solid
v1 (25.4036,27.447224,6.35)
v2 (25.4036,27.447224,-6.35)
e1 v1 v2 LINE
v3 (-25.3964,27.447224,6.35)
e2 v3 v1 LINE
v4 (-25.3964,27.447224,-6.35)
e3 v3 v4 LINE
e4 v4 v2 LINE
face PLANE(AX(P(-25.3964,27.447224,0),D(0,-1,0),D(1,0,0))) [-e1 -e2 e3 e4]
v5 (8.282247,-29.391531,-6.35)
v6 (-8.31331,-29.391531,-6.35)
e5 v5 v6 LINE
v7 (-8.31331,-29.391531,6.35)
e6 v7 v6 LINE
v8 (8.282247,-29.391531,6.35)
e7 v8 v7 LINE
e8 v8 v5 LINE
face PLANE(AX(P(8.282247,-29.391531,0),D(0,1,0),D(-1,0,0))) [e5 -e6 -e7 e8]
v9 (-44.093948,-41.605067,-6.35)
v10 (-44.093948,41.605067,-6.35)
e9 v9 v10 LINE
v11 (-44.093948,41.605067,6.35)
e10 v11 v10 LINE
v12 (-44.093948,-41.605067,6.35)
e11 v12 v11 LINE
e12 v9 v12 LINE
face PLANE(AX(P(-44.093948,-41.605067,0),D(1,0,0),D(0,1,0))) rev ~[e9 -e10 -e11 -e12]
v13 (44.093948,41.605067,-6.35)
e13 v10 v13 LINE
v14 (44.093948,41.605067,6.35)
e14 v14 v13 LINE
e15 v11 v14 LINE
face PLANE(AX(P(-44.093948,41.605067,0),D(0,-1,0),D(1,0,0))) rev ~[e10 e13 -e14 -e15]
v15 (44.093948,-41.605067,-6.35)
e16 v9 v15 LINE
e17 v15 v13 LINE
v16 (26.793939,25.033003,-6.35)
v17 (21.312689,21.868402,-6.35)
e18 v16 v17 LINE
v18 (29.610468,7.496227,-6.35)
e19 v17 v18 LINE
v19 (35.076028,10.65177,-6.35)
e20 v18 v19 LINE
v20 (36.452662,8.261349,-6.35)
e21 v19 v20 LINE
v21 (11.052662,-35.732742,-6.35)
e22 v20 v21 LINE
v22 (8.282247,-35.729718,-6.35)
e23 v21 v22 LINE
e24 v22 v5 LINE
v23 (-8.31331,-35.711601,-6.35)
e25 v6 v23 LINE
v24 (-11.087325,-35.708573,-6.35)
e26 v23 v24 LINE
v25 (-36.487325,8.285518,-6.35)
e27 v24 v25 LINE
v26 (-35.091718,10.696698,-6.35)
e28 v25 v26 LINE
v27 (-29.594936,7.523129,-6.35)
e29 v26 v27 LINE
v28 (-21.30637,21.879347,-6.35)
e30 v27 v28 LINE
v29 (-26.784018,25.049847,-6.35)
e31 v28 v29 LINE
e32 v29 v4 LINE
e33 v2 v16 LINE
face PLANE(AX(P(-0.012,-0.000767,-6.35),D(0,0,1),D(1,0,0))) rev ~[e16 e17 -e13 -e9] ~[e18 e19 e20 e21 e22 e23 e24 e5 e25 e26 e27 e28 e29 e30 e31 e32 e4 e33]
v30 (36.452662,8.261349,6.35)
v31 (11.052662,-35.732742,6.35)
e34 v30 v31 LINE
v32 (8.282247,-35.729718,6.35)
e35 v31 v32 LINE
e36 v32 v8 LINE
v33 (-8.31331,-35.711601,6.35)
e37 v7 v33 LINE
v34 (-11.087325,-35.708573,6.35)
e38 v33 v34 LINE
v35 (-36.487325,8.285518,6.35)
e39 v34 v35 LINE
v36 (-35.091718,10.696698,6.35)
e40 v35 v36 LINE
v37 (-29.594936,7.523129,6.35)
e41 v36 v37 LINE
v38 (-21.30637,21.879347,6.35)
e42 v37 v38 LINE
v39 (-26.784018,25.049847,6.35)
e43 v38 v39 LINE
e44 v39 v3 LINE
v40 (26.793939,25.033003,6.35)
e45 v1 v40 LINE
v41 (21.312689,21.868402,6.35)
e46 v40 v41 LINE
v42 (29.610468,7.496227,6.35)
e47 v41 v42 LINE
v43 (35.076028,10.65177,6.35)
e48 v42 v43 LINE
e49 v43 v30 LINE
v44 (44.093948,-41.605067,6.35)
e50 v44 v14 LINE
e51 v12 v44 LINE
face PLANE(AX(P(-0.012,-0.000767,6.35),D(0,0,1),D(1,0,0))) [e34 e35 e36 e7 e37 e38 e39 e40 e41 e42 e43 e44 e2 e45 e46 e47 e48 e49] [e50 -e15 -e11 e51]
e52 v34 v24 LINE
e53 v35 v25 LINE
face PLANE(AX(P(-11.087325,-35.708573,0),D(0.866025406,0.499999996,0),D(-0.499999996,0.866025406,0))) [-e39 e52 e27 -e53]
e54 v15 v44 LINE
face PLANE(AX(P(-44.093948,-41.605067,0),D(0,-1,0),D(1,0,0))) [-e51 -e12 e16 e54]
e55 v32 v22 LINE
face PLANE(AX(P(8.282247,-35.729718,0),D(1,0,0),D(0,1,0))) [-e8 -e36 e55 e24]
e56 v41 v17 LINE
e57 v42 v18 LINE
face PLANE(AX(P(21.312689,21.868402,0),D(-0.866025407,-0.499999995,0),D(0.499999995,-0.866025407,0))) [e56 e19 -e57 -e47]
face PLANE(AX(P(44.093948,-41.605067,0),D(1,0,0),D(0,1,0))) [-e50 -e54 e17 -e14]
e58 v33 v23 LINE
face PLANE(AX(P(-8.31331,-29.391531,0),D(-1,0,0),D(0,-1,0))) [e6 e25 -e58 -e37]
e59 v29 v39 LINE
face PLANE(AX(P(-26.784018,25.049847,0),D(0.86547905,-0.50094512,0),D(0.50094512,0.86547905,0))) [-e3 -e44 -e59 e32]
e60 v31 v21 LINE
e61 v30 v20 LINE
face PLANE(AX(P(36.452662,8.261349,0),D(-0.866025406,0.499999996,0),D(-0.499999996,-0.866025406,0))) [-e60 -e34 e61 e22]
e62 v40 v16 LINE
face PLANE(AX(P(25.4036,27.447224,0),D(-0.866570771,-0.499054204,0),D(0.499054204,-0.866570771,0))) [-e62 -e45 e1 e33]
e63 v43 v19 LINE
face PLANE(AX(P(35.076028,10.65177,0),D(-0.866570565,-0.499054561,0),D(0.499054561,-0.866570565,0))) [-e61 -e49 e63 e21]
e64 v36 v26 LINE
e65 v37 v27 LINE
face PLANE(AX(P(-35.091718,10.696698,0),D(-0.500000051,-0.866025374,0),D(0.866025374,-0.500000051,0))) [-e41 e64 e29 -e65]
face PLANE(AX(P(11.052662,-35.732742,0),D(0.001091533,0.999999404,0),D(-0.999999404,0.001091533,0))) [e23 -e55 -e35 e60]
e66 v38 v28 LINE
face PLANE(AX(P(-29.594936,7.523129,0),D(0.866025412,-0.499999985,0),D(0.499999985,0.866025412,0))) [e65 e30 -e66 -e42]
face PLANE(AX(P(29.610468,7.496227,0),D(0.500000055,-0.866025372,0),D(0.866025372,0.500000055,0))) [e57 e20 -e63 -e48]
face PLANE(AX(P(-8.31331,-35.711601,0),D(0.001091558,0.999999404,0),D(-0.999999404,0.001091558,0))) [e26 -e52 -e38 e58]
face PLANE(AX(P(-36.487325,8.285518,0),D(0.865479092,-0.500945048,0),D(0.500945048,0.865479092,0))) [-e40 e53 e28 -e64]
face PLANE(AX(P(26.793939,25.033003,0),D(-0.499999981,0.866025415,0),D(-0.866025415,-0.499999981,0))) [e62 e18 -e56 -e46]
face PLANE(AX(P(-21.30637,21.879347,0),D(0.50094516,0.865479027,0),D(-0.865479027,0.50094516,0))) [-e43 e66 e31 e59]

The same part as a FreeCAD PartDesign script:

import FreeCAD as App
import Part
import Sketcher
Q = App.Units.Quantity


def add_polygon(sketch, points):
    """Adds a closed chain of lines whose ends are joined by coincident constraints."""
    first, n = sketch.GeometryCount, len(points)
    for a, b in zip(points, points[1:] + points[:1]):
        sketch.addGeometry(Part.LineSegment(App.Vector(*a, 0), App.Vector(*b, 0)), False)
    for i in range(n):
        sketch.addConstraint(Sketcher.Constraint("Coincident", first + i, 2, first + (i + 1) % n, 1))

doc = App.newDocument("Part")
body = doc.addObject("PartDesign::Body", "Body")

sketch1 = body.newObject("Sketcher::SketchObject", "Sketch")
sketch1.AttachmentSupport = (doc.getObject("XY_Plane"), [""])
sketch1.MapMode = "FlatFace"
add_polygon(sketch1, [(-44.1, 41.6), (-44.1, -41.6), (44.1, -41.6), (44.1, 41.6)])
add_polygon(sketch1, [(-21.3, 21.9), (-26.8, 25), (-25.4, 27.4), (25.4, 27.4), (26.8, 25), (21.3, 21.9), (29.6, 7.5), (35.1, 10.7), (36.5, 8.3), (11.1, -35.7), (8.3, -35.7), (8.3, -29.4), (-8.3, -29.4), (-8.3, -35.7), (-11.1, -35.7), (-36.5, 8.3), (-35.1, 10.7), (-29.6, 7.5)])
sketch1.addConstraint(Sketcher.Constraint("Vertical", 0))
sketch1.addConstraint(Sketcher.Constraint("Horizontal", 1))
sketch1.addConstraint(Sketcher.Constraint("Vertical", 2))
sketch1.addConstraint(Sketcher.Constraint("Horizontal", 3))
sketch1.addConstraint(Sketcher.Constraint("Horizontal", 6))
sketch1.addConstraint(Sketcher.Constraint("Vertical", 14))
sketch1.addConstraint(Sketcher.Constraint("Horizontal", 15))
sketch1.addConstraint(Sketcher.Constraint("Vertical", 16))
sketch1.addConstraint(Sketcher.Constraint("Symmetric", 0, 2, 2, 2, -1, 1))
sketch1.addConstraint(Sketcher.Constraint("Perpendicular", 4, 5))
sketch1.addConstraint(Sketcher.Constraint("Perpendicular", 8, 9))
sketch1.addConstraint(Sketcher.Constraint("Perpendicular", 9, 10))
sketch1.addConstraint(Sketcher.Constraint("Parallel", 7, 11))
sketch1.addConstraint(Sketcher.Constraint("Parallel", 13, 17))
sketch1.addConstraint(Sketcher.Constraint("Perpendicular", 10, 18))
sketch1.addConstraint(Sketcher.Constraint("Parallel", 5, 19))
sketch1.addConstraint(Sketcher.Constraint("Perpendicular", 12, 20))
sketch1.addConstraint(Sketcher.Constraint("Perpendicular", 20, 21))
sketch1.addConstraint(Sketcher.Constraint("Equal", 12, 18))
sketch1.addConstraint(Sketcher.Constraint("Equal", 7, 19))
sketch1.addConstraint(Sketcher.Constraint("DistanceX", 6, 1, 6, 2, Q("2 in")))
sketch1.addConstraint(Sketcher.Constraint("Distance", 12, Q("2 in")))
sketch1.addConstraint(Sketcher.Constraint("Angle", 8, Q("-150.000001 deg")))
sketch1.addConstraint(Sketcher.Constraint("Angle", 12, Q("-120 deg")))
sketch1.addConstraint(Sketcher.Constraint("DistanceX", 8, 2, 2, 2, Q("0.8969 in")))
sketch1.addConstraint(Sketcher.Constraint("Distance", 5, Q("2.77 mm")))
sketch1.addConstraint(Sketcher.Constraint("DistanceY", 16, 2, 16, 1, Q("6.32007 mm")))
sketch1.addConstraint(Sketcher.Constraint("DistanceX", 5, 2, -1, 1, Q("25.3964 mm")))
sketch1.addConstraint(Sketcher.Constraint("DistanceY", -1, 1, 8, 2, Q("21.868402 mm")))
sketch1.addConstraint(Sketcher.Constraint("DistanceY", 16, 2, -1, 1, Q("35.711601 mm")))
sketch1.addConstraint(Sketcher.Constraint("DistanceY", 8, 2, 7, 2, Q("3.164601 mm")))
sketch1.addConstraint(Sketcher.Constraint("DistanceX", 13, 2, 1, 2, Q("35.811701 mm")))
sketch1.addConstraint(Sketcher.Constraint("DistanceX", 19, 2, 4, 2, Q("8.3077 mm")))
sketch1.addConstraint(Sketcher.Constraint("DistanceY", 21, 2, 4, 2, Q("3.1705 mm")))
sketch1.addConstraint(Sketcher.Constraint("Distance", 9, Q("16.595558 mm")))
sketch1.addConstraint(Sketcher.Constraint("Distance", 19, Q("2.785948 mm")))
sketch1.addConstraint(Sketcher.Constraint("DistanceX", 1, 1, 1, 2, Q("88.187896 mm")))
sketch1.addConstraint(Sketcher.Constraint("DistanceX", 15, 2, 15, 1, Q("16.595557 mm")))
sketch1.addConstraint(Sketcher.Constraint("DistanceY", 0, 2, 0, 1, Q("83.210134 mm")))
sketch1.addConstraint(Sketcher.Constraint("DistanceY", 14, 1, 14, 2, Q("6.338187 mm")))
sketch1.addConstraint(Sketcher.Constraint("DistanceY", -1, 1, 10, 2, Q("10.65177 mm")))
sketch1.addConstraint(Sketcher.Constraint("DistanceX", -1, 1, 11, 2, Q("36.452662 mm")))
sketch1.addConstraint(Sketcher.Constraint("DistanceY", -1, 1, 20, 2, Q("7.523129 mm")))
pad1 = body.newObject("PartDesign::Pad", "Pad")
pad1.Profile = sketch1
pad1.Length = Q("0.5 in")
pad1.Midplane = True

doc.recompute()
